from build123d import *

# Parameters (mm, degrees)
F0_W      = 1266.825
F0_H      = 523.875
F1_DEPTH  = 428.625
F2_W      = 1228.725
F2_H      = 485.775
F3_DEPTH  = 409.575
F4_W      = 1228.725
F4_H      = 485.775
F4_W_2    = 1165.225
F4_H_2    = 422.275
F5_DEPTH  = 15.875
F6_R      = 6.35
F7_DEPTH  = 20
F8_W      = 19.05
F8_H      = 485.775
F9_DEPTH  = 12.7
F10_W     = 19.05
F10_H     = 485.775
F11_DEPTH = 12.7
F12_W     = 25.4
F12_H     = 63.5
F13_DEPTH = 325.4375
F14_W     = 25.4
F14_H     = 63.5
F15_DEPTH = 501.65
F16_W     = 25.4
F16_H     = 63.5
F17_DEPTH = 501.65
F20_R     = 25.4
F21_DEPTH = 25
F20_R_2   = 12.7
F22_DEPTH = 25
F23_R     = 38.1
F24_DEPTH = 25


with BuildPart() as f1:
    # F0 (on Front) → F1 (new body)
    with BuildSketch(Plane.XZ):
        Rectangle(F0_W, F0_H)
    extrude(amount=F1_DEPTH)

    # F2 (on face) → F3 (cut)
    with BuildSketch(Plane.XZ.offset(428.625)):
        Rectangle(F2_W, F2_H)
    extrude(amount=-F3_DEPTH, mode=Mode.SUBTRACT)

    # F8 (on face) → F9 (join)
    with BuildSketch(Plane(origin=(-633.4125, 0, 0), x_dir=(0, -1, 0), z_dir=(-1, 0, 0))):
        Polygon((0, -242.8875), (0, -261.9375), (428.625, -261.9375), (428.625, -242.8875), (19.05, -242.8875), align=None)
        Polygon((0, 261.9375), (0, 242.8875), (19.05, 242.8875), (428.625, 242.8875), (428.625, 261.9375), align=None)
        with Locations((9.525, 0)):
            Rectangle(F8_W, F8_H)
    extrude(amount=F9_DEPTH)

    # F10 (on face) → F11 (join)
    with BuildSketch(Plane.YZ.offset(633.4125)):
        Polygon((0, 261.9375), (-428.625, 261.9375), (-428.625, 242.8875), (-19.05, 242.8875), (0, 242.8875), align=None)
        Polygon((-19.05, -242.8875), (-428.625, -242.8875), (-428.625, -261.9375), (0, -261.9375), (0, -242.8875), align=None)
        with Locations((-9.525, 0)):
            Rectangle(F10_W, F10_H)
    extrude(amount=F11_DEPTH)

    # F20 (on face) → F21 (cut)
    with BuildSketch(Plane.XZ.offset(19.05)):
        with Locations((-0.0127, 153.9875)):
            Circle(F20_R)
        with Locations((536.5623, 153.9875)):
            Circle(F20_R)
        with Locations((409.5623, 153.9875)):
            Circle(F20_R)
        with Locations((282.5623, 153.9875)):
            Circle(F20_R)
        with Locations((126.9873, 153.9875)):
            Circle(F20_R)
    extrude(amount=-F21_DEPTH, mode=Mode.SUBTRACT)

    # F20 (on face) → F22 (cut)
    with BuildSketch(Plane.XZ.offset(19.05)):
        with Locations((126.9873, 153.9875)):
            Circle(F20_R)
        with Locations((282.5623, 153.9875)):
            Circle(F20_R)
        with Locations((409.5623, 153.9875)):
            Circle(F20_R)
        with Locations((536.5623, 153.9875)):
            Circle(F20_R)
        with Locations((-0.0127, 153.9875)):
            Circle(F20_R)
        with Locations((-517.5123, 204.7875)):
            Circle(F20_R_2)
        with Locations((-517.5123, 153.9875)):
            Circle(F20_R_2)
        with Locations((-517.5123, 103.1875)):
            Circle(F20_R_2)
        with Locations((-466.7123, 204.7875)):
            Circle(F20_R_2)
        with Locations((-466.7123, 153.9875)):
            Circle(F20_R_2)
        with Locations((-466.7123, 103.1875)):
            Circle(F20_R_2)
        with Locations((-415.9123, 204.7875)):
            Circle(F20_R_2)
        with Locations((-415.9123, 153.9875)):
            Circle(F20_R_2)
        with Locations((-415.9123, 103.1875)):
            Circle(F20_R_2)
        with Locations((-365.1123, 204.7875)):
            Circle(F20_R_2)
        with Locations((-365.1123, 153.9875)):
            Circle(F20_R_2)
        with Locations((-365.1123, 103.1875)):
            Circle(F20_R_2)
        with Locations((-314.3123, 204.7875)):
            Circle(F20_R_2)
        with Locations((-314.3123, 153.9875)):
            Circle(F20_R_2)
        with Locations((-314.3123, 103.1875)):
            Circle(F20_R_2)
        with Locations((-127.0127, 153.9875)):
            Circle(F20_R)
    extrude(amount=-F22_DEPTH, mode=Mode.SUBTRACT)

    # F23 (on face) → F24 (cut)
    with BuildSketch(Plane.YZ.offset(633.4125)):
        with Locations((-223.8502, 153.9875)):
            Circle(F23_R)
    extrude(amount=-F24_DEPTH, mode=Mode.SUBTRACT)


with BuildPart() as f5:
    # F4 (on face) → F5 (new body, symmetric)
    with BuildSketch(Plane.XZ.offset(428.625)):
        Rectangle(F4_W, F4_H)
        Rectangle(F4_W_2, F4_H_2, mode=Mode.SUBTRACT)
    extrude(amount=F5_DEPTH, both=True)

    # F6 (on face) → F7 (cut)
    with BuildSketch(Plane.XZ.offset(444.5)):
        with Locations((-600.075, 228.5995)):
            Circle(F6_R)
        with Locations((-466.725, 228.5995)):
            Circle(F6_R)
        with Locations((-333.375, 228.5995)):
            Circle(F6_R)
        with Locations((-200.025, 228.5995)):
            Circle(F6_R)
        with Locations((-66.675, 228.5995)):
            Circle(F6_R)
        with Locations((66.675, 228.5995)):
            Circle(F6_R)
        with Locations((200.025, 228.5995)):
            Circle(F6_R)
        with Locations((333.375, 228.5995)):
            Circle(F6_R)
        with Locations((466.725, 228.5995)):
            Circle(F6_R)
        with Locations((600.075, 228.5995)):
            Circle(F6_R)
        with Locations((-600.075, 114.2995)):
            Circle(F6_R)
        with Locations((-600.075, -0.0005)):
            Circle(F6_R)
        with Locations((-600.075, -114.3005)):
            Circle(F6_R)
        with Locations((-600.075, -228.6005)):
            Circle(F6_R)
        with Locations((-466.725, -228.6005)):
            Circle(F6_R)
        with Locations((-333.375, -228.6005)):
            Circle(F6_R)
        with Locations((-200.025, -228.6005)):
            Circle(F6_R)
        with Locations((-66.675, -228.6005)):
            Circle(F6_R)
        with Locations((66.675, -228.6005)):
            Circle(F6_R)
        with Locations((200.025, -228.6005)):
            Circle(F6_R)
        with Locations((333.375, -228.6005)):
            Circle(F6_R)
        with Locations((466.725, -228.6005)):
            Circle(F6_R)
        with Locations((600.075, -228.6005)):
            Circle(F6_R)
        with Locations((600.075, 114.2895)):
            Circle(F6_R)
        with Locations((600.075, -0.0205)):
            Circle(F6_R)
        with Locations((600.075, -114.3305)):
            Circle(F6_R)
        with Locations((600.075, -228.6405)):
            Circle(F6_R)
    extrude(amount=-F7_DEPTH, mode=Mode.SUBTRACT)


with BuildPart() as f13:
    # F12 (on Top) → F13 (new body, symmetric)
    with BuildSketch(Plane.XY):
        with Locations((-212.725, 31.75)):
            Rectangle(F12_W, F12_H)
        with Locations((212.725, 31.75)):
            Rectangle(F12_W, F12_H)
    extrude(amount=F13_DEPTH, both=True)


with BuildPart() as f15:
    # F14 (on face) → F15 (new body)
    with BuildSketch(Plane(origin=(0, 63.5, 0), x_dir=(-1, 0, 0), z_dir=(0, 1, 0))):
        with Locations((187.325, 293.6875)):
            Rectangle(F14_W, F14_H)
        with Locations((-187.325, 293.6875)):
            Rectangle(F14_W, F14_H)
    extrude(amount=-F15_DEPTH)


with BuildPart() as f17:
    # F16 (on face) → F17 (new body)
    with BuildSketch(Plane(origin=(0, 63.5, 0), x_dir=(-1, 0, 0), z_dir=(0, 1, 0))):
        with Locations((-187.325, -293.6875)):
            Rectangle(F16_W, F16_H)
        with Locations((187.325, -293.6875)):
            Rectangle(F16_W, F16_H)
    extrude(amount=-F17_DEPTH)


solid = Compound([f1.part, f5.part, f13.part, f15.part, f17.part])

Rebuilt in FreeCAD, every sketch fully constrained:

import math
import FreeCAD as App
import Part
import Sketcher

V = App.Vector
Q = App.Units.Quantity


def add_polygon(sketch, points):
    """Adds a closed chain of lines whose ends are joined by coincident constraints."""
    first, n = sketch.GeometryCount, len(points)
    for a, b in zip(points, points[1:] + points[:1]):
        sketch.addGeometry(Part.LineSegment(App.Vector(*a, 0), App.Vector(*b, 0)), False)
    for i in range(n):
        sketch.addConstraint(Sketcher.Constraint("Coincident", first + i, 2, first + (i + 1) % n, 1))

doc = App.newDocument("Part")
body = doc.addObject("PartDesign::Body", "Body")

# Sketch on XZ plane
sketch1 = body.newObject("Sketcher::SketchObject", "Sketch")
sketch1.AttachmentSupport = (doc.getObject("XZ_Plane"), [""])
sketch1.MapMode = "FlatFace"
add_polygon(sketch1, [(-633, 262), (-633, -262), (633, -262), (633, 262)])  # lines 0-3
sketch1.addConstraint(Sketcher.Constraint("Vertical", 0))
sketch1.addConstraint(Sketcher.Constraint("Horizontal", 1))
sketch1.addConstraint(Sketcher.Constraint("Vertical", 2))
sketch1.addConstraint(Sketcher.Constraint("Horizontal", 3))
sketch1.addConstraint(Sketcher.Constraint("Symmetric", 0, 2, 2, 2, -1, 1))
sketch1.addConstraint(Sketcher.Constraint("DistanceX", 1, 1, 1, 2, Q("49.875 in")))
sketch1.addConstraint(Sketcher.Constraint("DistanceY", 0, 2, 0, 1, Q("20.625 in")))
pad1 = body.newObject("PartDesign::Pad", "Pad")
pad1.Profile = sketch1
pad1.Length = Q("16.875 in")

# Sketch on XZ plane
sketch2 = body.newObject("Sketcher::SketchObject", "Sketch001")
sketch2.AttachmentSupport = (doc.getObject("XZ_Plane"), [""])
sketch2.MapMode = "FlatFace"
sketch2.AttachmentOffset = App.Placement(V(0, 0, 16.875 * 25.4), App.Rotation())
add_polygon(sketch2, [(-614, 243), (-614, -243), (614, -243), (614, 243)])  # lines 0-3
sketch2.addConstraint(Sketcher.Constraint("Vertical", 0))
sketch2.addConstraint(Sketcher.Constraint("Horizontal", 1))
sketch2.addConstraint(Sketcher.Constraint("Vertical", 2))
sketch2.addConstraint(Sketcher.Constraint("Horizontal", 3))
sketch2.addConstraint(Sketcher.Constraint("Symmetric", 0, 2, 2, 2, -1, 1))
sketch2.addConstraint(Sketcher.Constraint("DistanceX", 1, 1, 1, 2, Q("48.375 in")))
sketch2.addConstraint(Sketcher.Constraint("DistanceY", 0, 2, 0, 1, Q("19.125 in")))
pocket1 = body.newObject("PartDesign::Pocket", "Pocket")
pocket1.Profile = sketch2
pocket1.Length = Q("16.125 in")

# Sketch on YZ plane
sketch3 = body.newObject("Sketcher::SketchObject", "Sketch002")
sketch3.AttachmentSupport = (doc.getObject("YZ_Plane"), [""])
sketch3.MapMode = "FlatFace"
sketch3.AttachmentOffset = App.Placement(V(0, 0, -24.9375 * 25.4), App.Rotation())
add_polygon(sketch3, [(0, -262), (-429, -262), (-429, -243), (-19, -243), (-19, 243), (-429, 243), (-429, 262), (0, 262)])  # lines 0-7
sketch3.addConstraint(Sketcher.Constraint("Horizontal", 0))
sketch3.addConstraint(Sketcher.Constraint("Vertical", 1))
sketch3.addConstraint(Sketcher.Constraint("Horizontal", 2))
sketch3.addConstraint(Sketcher.Constraint("Vertical", 3))
sketch3.addConstraint(Sketcher.Constraint("Horizontal", 4))
sketch3.addConstraint(Sketcher.Constraint("Vertical", 5))
sketch3.addConstraint(Sketcher.Constraint("Horizontal", 6))
sketch3.addConstraint(Sketcher.Constraint("Vertical", 7))
sketch3.addConstraint(Sketcher.Constraint("Symmetric", 6, 2, 7, 2, -1, 1))
sketch3.addConstraint(Sketcher.Constraint("Symmetric", 1, 2, 4, 2, -1))
sketch3.addConstraint(Sketcher.Constraint("DistanceY", 1, 1, 1, 2, Q("0.75 in")))
sketch3.addConstraint(Sketcher.Constraint("DistanceX", 0, 2, 0, 1, Q("16.875 in")))
sketch3.addConstraint(Sketcher.Constraint("DistanceX", 2, 1, 2, 2, Q("16.125 in")))
sketch3.addConstraint(Sketcher.Constraint("DistanceY", 3, 1, 3, 2, Q("19.125 in")))
pad2 = body.newObject("PartDesign::Pad", "Pad001")
pad2.Profile = sketch3
pad2.Length = Q("0.5 in")
pad2.Reversed = True

# Sketch on YZ plane
sketch4 = body.newObject("Sketcher::SketchObject", "Sketch003")
sketch4.AttachmentSupport = (doc.getObject("YZ_Plane"), [""])
sketch4.MapMode = "FlatFace"
sketch4.AttachmentOffset = App.Placement(V(0, 0, 24.9375 * 25.4), App.Rotation())
add_polygon(sketch4, [(0, 262), (-429, 262), (-429, 243), (-19, 243), (-19, -243), (-429, -243), (-429, -262), (0, -262)])  # lines 0-7
sketch4.addConstraint(Sketcher.Constraint("Horizontal", 0))
sketch4.addConstraint(Sketcher.Constraint("Vertical", 1))
sketch4.addConstraint(Sketcher.Constraint("Horizontal", 2))
sketch4.addConstraint(Sketcher.Constraint("Vertical", 3))
sketch4.addConstraint(Sketcher.Constraint("Horizontal", 4))
sketch4.addConstraint(Sketcher.Constraint("Vertical", 5))
sketch4.addConstraint(Sketcher.Constraint("Horizontal", 6))
sketch4.addConstraint(Sketcher.Constraint("Vertical", 7))
sketch4.addConstraint(Sketcher.Constraint("Symmetric", 6, 2, 7, 2, -1, 1))
sketch4.addConstraint(Sketcher.Constraint("Symmetric", 1, 2, 4, 2, -1))
sketch4.addConstraint(Sketcher.Constraint("DistanceY", 1, 2, 1, 1, Q("0.75 in")))
sketch4.addConstraint(Sketcher.Constraint("DistanceX", 0, 2, 0, 1, Q("16.875 in")))
sketch4.addConstraint(Sketcher.Constraint("DistanceX", 2, 1, 2, 2, Q("16.125 in")))
sketch4.addConstraint(Sketcher.Constraint("DistanceY", 3, 2, 3, 1, Q("19.125 in")))
pad3 = body.newObject("PartDesign::Pad", "Pad002")
pad3.Profile = sketch4
pad3.Length = Q("0.5 in")

# Sketch on XZ plane
sketch5 = body.newObject("Sketcher::SketchObject", "Sketch004")
sketch5.AttachmentSupport = (doc.getObject("XZ_Plane"), [""])
sketch5.MapMode = "FlatFace"
sketch5.AttachmentOffset = App.Placement(V(0, 0, 0.75 * 25.4), App.Rotation())
sketch5.addGeometry(Part.Circle(V(0, 154, 0), V(0, 0, 1), 25), False)
sketch5.addGeometry(Part.Circle(V(537, 154, 0), V(0, 0, 1), 25), False)
sketch5.addGeometry(Part.Circle(V(410, 154, 0), V(0, 0, 1), 25), False)
sketch5.addGeometry(Part.Circle(V(283, 154, 0), V(0, 0, 1), 25), False)
sketch5.addGeometry(Part.Circle(V(127, 154, 0), V(0, 0, 1), 25), False)
sketch5.addConstraint(Sketcher.Constraint("Equal", 0, 1))
sketch5.addConstraint(Sketcher.Constraint("Equal", 1, 2))
sketch5.addConstraint(Sketcher.Constraint("Equal", 2, 3))
sketch5.addConstraint(Sketcher.Constraint("Equal", 3, 4))
sketch5.addConstraint(Sketcher.Constraint("Horizontal", 0, 3, 1, 3))
sketch5.addConstraint(Sketcher.Constraint("Horizontal", 1, 3, 2, 3))
sketch5.addConstraint(Sketcher.Constraint("Horizontal", 2, 3, 3, 3))
sketch5.addConstraint(Sketcher.Constraint("Horizontal", 3, 3, 4, 3))
sketch5.addConstraint(Sketcher.Constraint("Diameter", 0, Q("2 in")))
sketch5.addConstraint(Sketcher.Constraint("DistanceX", 2, 3, 1, 3, Q("5 in")))
sketch5.addConstraint(Sketcher.Constraint("DistanceX", 3, 3, 2, 3, Q("5 in")))
sketch5.addConstraint(Sketcher.Constraint("DistanceX", 0, 3, 4, 3, Q("5 in")))
sketch5.addConstraint(Sketcher.Constraint("DistanceY", -1, 1, 0, 3, Q("6.0625 in")))
sketch5.addConstraint(Sketcher.Constraint("DistanceX", 0, 3, 1, 3, Q("21.125 in")))
sketch5.addConstraint(Sketcher.Constraint("DistanceX", 0, 3, -1, 1, Q("0.0005 in")))
pocket2 = body.newObject("PartDesign::Pocket", "Pocket001")
pocket2.Profile = sketch5
pocket2.Length = 25

# Sketch on XZ plane
sketch6 = body.newObject("Sketcher::SketchObject", "Sketch005")
sketch6.AttachmentSupport = (doc.getObject("XZ_Plane"), [""])
sketch6.MapMode = "FlatFace"
sketch6.AttachmentOffset = App.Placement(V(0, 0, 0.75 * 25.4), App.Rotation())
sketch6.addGeometry(Part.Circle(V(127, 154, 0), V(0, 0, 1), 25), False)
sketch6.addGeometry(Part.Circle(V(283, 154, 0), V(0, 0, 1), 25), False)
sketch6.addGeometry(Part.Circle(V(410, 154, 0), V(0, 0, 1), 25), False)
sketch6.addGeometry(Part.Circle(V(537, 154, 0), V(0, 0, 1), 25), False)
sketch6.addGeometry(Part.Circle(V(0, 154, 0), V(0, 0, 1), 25), False)
sketch6.addGeometry(Part.Circle(V(-518, 205, 0), V(0, 0, 1), 13), False)
sketch6.addGeometry(Part.Circle(V(-518, 154, 0), V(0, 0, 1), 13), False)
sketch6.addGeometry(Part.Circle(V(-518, 103, 0), V(0, 0, 1), 13), False)
sketch6.addGeometry(Part.Circle(V(-467, 205, 0), V(0, 0, 1), 13), False)
sketch6.addGeometry(Part.Circle(V(-467, 154, 0), V(0, 0, 1), 13), False)
sketch6.addGeometry(Part.Circle(V(-467, 103, 0), V(0, 0, 1), 13), False)
sketch6.addGeometry(Part.Circle(V(-416, 205, 0), V(0, 0, 1), 13), False)
sketch6.addGeometry(Part.Circle(V(-416, 154, 0), V(0, 0, 1), 13), False)
sketch6.addGeometry(Part.Circle(V(-416, 103, 0), V(0, 0, 1), 13), False)
sketch6.addGeometry(Part.Circle(V(-365, 205, 0), V(0, 0, 1), 13), False)
sketch6.addGeometry(Part.Circle(V(-365, 154, 0), V(0, 0, 1), 13), False)
sketch6.addGeometry(Part.Circle(V(-365, 103, 0), V(0, 0, 1), 13), False)
sketch6.addGeometry(Part.Circle(V(-314, 205, 0), V(0, 0, 1), 13), False)
sketch6.addGeometry(Part.Circle(V(-314, 154, 0), V(0, 0, 1), 13), False)
sketch6.addGeometry(Part.Circle(V(-314, 103, 0), V(0, 0, 1), 13), False)
sketch6.addGeometry(Part.Circle(V(-127, 154, 0), V(0, 0, 1), 25), False)
sketch6.addConstraint(Sketcher.Constraint("Equal", 0, 1))
sketch6.addConstraint(Sketcher.Constraint("Equal", 1, 2))
sketch6.addConstraint(Sketcher.Constraint("Equal", 2, 3))
sketch6.addConstraint(Sketcher.Constraint("Equal", 3, 4))
sketch6.addConstraint(Sketcher.Constraint("Equal", 5, 6))
sketch6.addConstraint(Sketcher.Constraint("Equal", 6, 7))
sketch6.addConstraint(Sketcher.Constraint("Equal", 7, 8))
sketch6.addConstraint(Sketcher.Constraint("Equal", 8, 9))
sketch6.addConstraint(Sketcher.Constraint("Equal", 9, 10))
sketch6.addConstraint(Sketcher.Constraint("Equal", 10, 11))
sketch6.addConstraint(Sketcher.Constraint("Equal", 11, 12))
sketch6.addConstraint(Sketcher.Constraint("Equal", 12, 13))
sketch6.addConstraint(Sketcher.Constraint("Equal", 13, 14))
sketch6.addConstraint(Sketcher.Constraint("Equal", 14, 15))
sketch6.addConstraint(Sketcher.Constraint("Equal", 15, 16))
sketch6.addConstraint(Sketcher.Constraint("Equal", 16, 17))
sketch6.addConstraint(Sketcher.Constraint("Equal", 17, 18))
sketch6.addConstraint(Sketcher.Constraint("Equal", 18, 19))
sketch6.addConstraint(Sketcher.Constraint("Equal", 4, 20))
sketch6.addConstraint(Sketcher.Constraint("Horizontal", 0, 3, 1, 3))
sketch6.addConstraint(Sketcher.Constraint("Horizontal", 1, 3, 2, 3))
sketch6.addConstraint(Sketcher.Constraint("Horizontal", 2, 3, 3, 3))
sketch6.addConstraint(Sketcher.Constraint("Horizontal", 3, 3, 4, 3))
sketch6.addConstraint(Sketcher.Constraint("Horizontal", 4, 3, 6, 3))
sketch6.addConstraint(Sketcher.Constraint("Horizontal", 5, 3, 8, 3))
sketch6.addConstraint(Sketcher.Constraint("Horizontal", 6, 3, 9, 3))
sketch6.addConstraint(Sketcher.Constraint("Horizontal", 7, 3, 10, 3))
sketch6.addConstraint(Sketcher.Constraint("Horizontal", 8, 3, 11, 3))
sketch6.addConstraint(Sketcher.Constraint("Horizontal", 9, 3, 12, 3))
sketch6.addConstraint(Sketcher.Constraint("Horizontal", 10, 3, 13, 3))
sketch6.addConstraint(Sketcher.Constraint("Horizontal", 11, 3, 14, 3))
sketch6.addConstraint(Sketcher.Constraint("Horizontal", 12, 3, 15, 3))
sketch6.addConstraint(Sketcher.Constraint("Horizontal", 13, 3, 16, 3))
sketch6.addConstraint(Sketcher.Constraint("Horizontal", 14, 3, 17, 3))
sketch6.addConstraint(Sketcher.Constraint("Horizontal", 15, 3, 18, 3))
sketch6.addConstraint(Sketcher.Constraint("Horizontal", 16, 3, 19, 3))
sketch6.addConstraint(Sketcher.Constraint("Horizontal", 18, 3, 20, 3))
sketch6.addConstraint(Sketcher.Constraint("Vertical", 5, 3, 6, 3))
sketch6.addConstraint(Sketcher.Constraint("Vertical", 6, 3, 7, 3))
sketch6.addConstraint(Sketcher.Constraint("Vertical", 8, 3, 9, 3))
sketch6.addConstraint(Sketcher.Constraint("Vertical", 9, 3, 10, 3))
sketch6.addConstraint(Sketcher.Constraint("Vertical", 11, 3, 12, 3))
sketch6.addConstraint(Sketcher.Constraint("Vertical", 12, 3, 13, 3))
sketch6.addConstraint(Sketcher.Constraint("Vertical", 14, 3, 15, 3))
sketch6.addConstraint(Sketcher.Constraint("Vertical", 15, 3, 16, 3))
sketch6.addConstraint(Sketcher.Constraint("Vertical", 17, 3, 18, 3))
sketch6.addConstraint(Sketcher.Constraint("Vertical", 18, 3, 19, 3))
sketch6.addConstraint(Sketcher.Constraint("Diameter", 0, Q("2 in")))
sketch6.addConstraint(Sketcher.Constraint("Diameter", 5, Q("1 in")))
sketch6.addConstraint(Sketcher.Constraint("DistanceX", 1, 3, 2, 3, Q("5 in")))
sketch6.addConstraint(Sketcher.Constraint("DistanceX", 2, 3, 3, 3, Q("5 in")))
sketch6.addConstraint(Sketcher.Constraint("DistanceX", 4, 3, 0, 3, Q("5 in")))
sketch6.addConstraint(Sketcher.Constraint("DistanceY", 4, 3, 5, 3, Q("2 in")))
sketch6.addConstraint(Sketcher.Constraint("DistanceY", 7, 3, 6, 3, Q("2 in")))
sketch6.addConstraint(Sketcher.Constraint("DistanceX", 5, 3, 8, 3, Q("2 in")))
sketch6.addConstraint(Sketcher.Constraint("DistanceX", 8, 3, 11, 3, Q("2 in")))
sketch6.addConstraint(Sketcher.Constraint("DistanceX", 11, 3, 14, 3, Q("2 in")))
sketch6.addConstraint(Sketcher.Constraint("DistanceX", 14, 3, 17, 3, Q("2 in")))
sketch6.addConstraint(Sketcher.Constraint("DistanceX", 20, 3, 4, 3, Q("5 in")))
sketch6.addConstraint(Sketcher.Constraint("DistanceY", -1, 1, 0, 3, Q("6.0625 in")))
sketch6.addConstraint(Sketcher.Constraint("DistanceX", 0, 3, 1, 3, Q("6.125 in")))
sketch6.addConstraint(Sketcher.Constraint("DistanceX", 5, 3, 4, 3, Q("20.374 in")))
sketch6.addConstraint(Sketcher.Constraint("DistanceX", -1, 1, 0, 3, Q("4.9995 in")))
pocket3 = body.newObject("PartDesign::Pocket", "Pocket002")
pocket3.Profile = sketch6
pocket3.Length = 25

# Sketch on YZ plane
sketch7 = body.newObject("Sketcher::SketchObject", "Sketch006")
sketch7.AttachmentSupport = (doc.getObject("YZ_Plane"), [""])
sketch7.MapMode = "FlatFace"
sketch7.AttachmentOffset = App.Placement(V(0, 0, 24.9375 * 25.4), App.Rotation())
sketch7.addGeometry(Part.Circle(V(-224, 154, 0), V(0, 0, 1), 38), False)
sketch7.addConstraint(Sketcher.Constraint("Diameter", 0, Q("3 in")))
sketch7.addConstraint(Sketcher.Constraint("DistanceX", 0, 3, -1, 1, Q("8.813 in")))
sketch7.addConstraint(Sketcher.Constraint("DistanceY", -1, 1, 0, 3, Q("6.0625 in")))
pocket4 = body.newObject("PartDesign::Pocket", "Pocket003")
pocket4.Profile = sketch7
pocket4.Length = 25
body2 = doc.addObject("PartDesign::Body", "Body001")

# Sketch on XZ plane
sketch8 = body2.newObject("Sketcher::SketchObject", "Sketch007")
sketch8.AttachmentSupport = (doc.getObject("XZ_Plane001"), [""])
sketch8.MapMode = "FlatFace"
sketch8.AttachmentOffset = App.Placement(V(0, 0, 16.875 * 25.4), App.Rotation())
add_polygon(sketch8, [(-614, 243), (-614, -243), (614, -243), (614, 243)])  # lines 0-3
add_polygon(sketch8, [(583, -211), (-583, -211), (-583, 211), (583, 211)])  # lines 4-7
sketch8.addConstraint(Sketcher.Constraint("Vertical", 0))
sketch8.addConstraint(Sketcher.Constraint("Horizontal", 1))
sketch8.addConstraint(Sketcher.Constraint("Vertical", 2))
sketch8.addConstraint(Sketcher.Constraint("Horizontal", 3))
sketch8.addConstraint(Sketcher.Constraint("Horizontal", 4))
sketch8.addConstraint(Sketcher.Constraint("Vertical", 5))
sketch8.addConstraint(Sketcher.Constraint("Horizontal", 6))
sketch8.addConstraint(Sketcher.Constraint("Vertical", 7))
sketch8.addConstraint(Sketcher.Constraint("Symmetric", 0, 2, 2, 2, -1, 1))
sketch8.addConstraint(Sketcher.Constraint("Symmetric", 4, 2, 6, 2, -1, 1))
sketch8.addConstraint(Sketcher.Constraint("DistanceX", 1, 1, 1, 2, Q("48.375 in")))
sketch8.addConstraint(Sketcher.Constraint("DistanceX", 4, 2, 4, 1, Q("45.875 in")))
sketch8.addConstraint(Sketcher.Constraint("DistanceY", 0, 2, 0, 1, Q("19.125 in")))
sketch8.addConstraint(Sketcher.Constraint("DistanceY", 5, 1, 5, 2, Q("16.625 in")))
pad4 = body2.newObject("PartDesign::Pad", "Pad003")
pad4.Profile = sketch8
pad4.Length = Q("1.25 in")
pad4.Midplane = True

# Sketch on XZ plane
sketch9 = body2.newObject("Sketcher::SketchObject", "Sketch008")
sketch9.AttachmentSupport = (doc.getObject("XZ_Plane001"), [""])
sketch9.MapMode = "FlatFace"
sketch9.AttachmentOffset = App.Placement(V(0, 0, 17.5 * 25.4), App.Rotation())
sketch9.addGeometry(Part.Circle(V(-600.075, 228.5995, 0), V(0, 0, 1), 6.35), False)
sketch9.addGeometry(Part.Circle(V(-466.725, 228.5995, 0), V(0, 0, 1), 6.35), False)
sketch9.addGeometry(Part.Circle(V(-333.375, 228.5995, 0), V(0, 0, 1), 6.35), False)
sketch9.addGeometry(Part.Circle(V(-200.025, 228.5995, 0), V(0, 0, 1), 6.35), False)
sketch9.addGeometry(Part.Circle(V(-66.675, 228.5995, 0), V(0, 0, 1), 6.35), False)
sketch9.addGeometry(Part.Circle(V(66.675, 228.5995, 0), V(0, 0, 1), 6.35), False)
sketch9.addGeometry(Part.Circle(V(200.025, 228.5995, 0), V(0, 0, 1), 6.35), False)
sketch9.addGeometry(Part.Circle(V(333.375, 228.5995, 0), V(0, 0, 1), 6.35), False)
sketch9.addGeometry(Part.Circle(V(466.725, 228.5995, 0), V(0, 0, 1), 6.35), False)
sketch9.addGeometry(Part.Circle(V(600.075, 228.5995, 0), V(0, 0, 1), 6.35), False)
sketch9.addGeometry(Part.Circle(V(-600.075, 114.2995, 0), V(0, 0, 1), 6.35), False)
sketch9.addGeometry(Part.Circle(V(-600.075, -0.0005, 0), V(0, 0, 1), 6.35), False)
sketch9.addGeometry(Part.Circle(V(-600.075, -114.3005, 0), V(0, 0, 1), 6.35), False)
sketch9.addGeometry(Part.Circle(V(-600.075, -228.6005, 0), V(0, 0, 1), 6.35), False)
sketch9.addGeometry(Part.Circle(V(-466.725, -228.6005, 0), V(0, 0, 1), 6.35), False)
sketch9.addGeometry(Part.Circle(V(-333.375, -228.6005, 0), V(0, 0, 1), 6.35), False)
sketch9.addGeometry(Part.Circle(V(-200.025, -228.6005, 0), V(0, 0, 1), 6.35), False)
sketch9.addGeometry(Part.Circle(V(-66.675, -228.6005, 0), V(0, 0, 1), 6.35), False)
sketch9.addGeometry(Part.Circle(V(66.675, -228.6005, 0), V(0, 0, 1), 6.35), False)
sketch9.addGeometry(Part.Circle(V(200.025, -228.6005, 0), V(0, 0, 1), 6.35), False)
sketch9.addGeometry(Part.Circle(V(333.375, -228.6005, 0), V(0, 0, 1), 6.35), False)
sketch9.addGeometry(Part.Circle(V(466.725, -228.6005, 0), V(0, 0, 1), 6.35), False)
sketch9.addGeometry(Part.ArcOfCircle(Part.Circle(V(600.075, -228.6005, 0), V(0, 0, 1), 6.35), math.radians(-0.180459), math.radians(180.180459)), False)
sketch9.addGeometry(Part.ArcOfCircle(Part.Circle(V(600.075, -228.6405, 0), V(0, 0, 1), 6.35), math.radians(179.819541), math.radians(360.180459)), False)
sketch9.addGeometry(Part.Circle(V(600.075, 114.2895, 0), V(0, 0, 1), 6.35), False)
sketch9.addGeometry(Part.Circle(V(600.075, -0.0205, 0), V(0, 0, 1), 6.35), False)
sketch9.addGeometry(Part.Circle(V(600.075, -114.3305, 0), V(0, 0, 1), 6.35), False)
sketch9.addConstraint(Sketcher.Constraint("Coincident", 22, 1, 23, 2))
sketch9.addConstraint(Sketcher.Constraint("Coincident", 23, 1, 22, 2))
sketch9.addConstraint(Sketcher.Constraint("Equal", 0, 1))
sketch9.addConstraint(Sketcher.Constraint("Equal", 1, 2))
sketch9.addConstraint(Sketcher.Constraint("Equal", 2, 3))
sketch9.addConstraint(Sketcher.Constraint("Equal", 3, 4))
sketch9.addConstraint(Sketcher.Constraint("Equal", 4, 5))
sketch9.addConstraint(Sketcher.Constraint("Equal", 5, 6))
sketch9.addConstraint(Sketcher.Constraint("Equal", 6, 7))
sketch9.addConstraint(Sketcher.Constraint("Equal", 7, 8))
sketch9.addConstraint(Sketcher.Constraint("Equal", 8, 9))
sketch9.addConstraint(Sketcher.Constraint("Equal", 9, 10))
sketch9.addConstraint(Sketcher.Constraint("Equal", 10, 11))
sketch9.addConstraint(Sketcher.Constraint("Equal", 11, 12))
sketch9.addConstraint(Sketcher.Constraint("Equal", 12, 13))
sketch9.addConstraint(Sketcher.Constraint("Equal", 13, 14))
sketch9.addConstraint(Sketcher.Constraint("Equal", 14, 15))
sketch9.addConstraint(Sketcher.Constraint("Equal", 15, 16))
sketch9.addConstraint(Sketcher.Constraint("Equal", 16, 17))
sketch9.addConstraint(Sketcher.Constraint("Equal", 17, 18))
sketch9.addConstraint(Sketcher.Constraint("Equal", 18, 19))
sketch9.addConstraint(Sketcher.Constraint("Equal", 19, 20))
sketch9.addConstraint(Sketcher.Constraint("Equal", 20, 21))
sketch9.addConstraint(Sketcher.Constraint("Equal", 21, 22))
sketch9.addConstraint(Sketcher.Constraint("Equal", 22, 23))
sketch9.addConstraint(Sketcher.Constraint("Equal", 23, 24))
sketch9.addConstraint(Sketcher.Constraint("Equal", 24, 25))
sketch9.addConstraint(Sketcher.Constraint("Equal", 25, 26))
sketch9.addConstraint(Sketcher.Constraint("Symmetric", 4, 3, 5, 3, -2))
sketch9.addConstraint(Sketcher.Constraint("Symmetric", 3, 3, 6, 3, -2))
sketch9.addConstraint(Sketcher.Constraint("Symmetric", 2, 3, 7, 3, -2))
sketch9.addConstraint(Sketcher.Constraint("Symmetric", 1, 3, 8, 3, -2))
sketch9.addConstraint(Sketcher.Constraint("Symmetric", 0, 3, 9, 3, -2))
sketch9.addConstraint(Sketcher.Constraint("Symmetric", 17, 3, 18, 3, -2))
sketch9.addConstraint(Sketcher.Constraint("Symmetric", 16, 3, 19, 3, -2))
sketch9.addConstraint(Sketcher.Constraint("Symmetric", 15, 3, 20, 3, -2))
sketch9.addConstraint(Sketcher.Constraint("Symmetric", 14, 3, 21, 3, -2))
sketch9.addConstraint(Sketcher.Constraint("Symmetric", 13, 3, 22, 3, -2))
sketch9.addConstraint(Sketcher.Constraint("Horizontal", 0, 3, 1, 3))
sketch9.addConstraint(Sketcher.Constraint("Horizontal", 1, 3, 2, 3))
sketch9.addConstraint(Sketcher.Constraint("Horizontal", 2, 3, 3, 3))
sketch9.addConstraint(Sketcher.Constraint("Horizontal", 3, 3, 4, 3))
sketch9.addConstraint(Sketcher.Constraint("Horizontal", 13, 3, 14, 3))
sketch9.addConstraint(Sketcher.Constraint("Horizontal", 14, 3, 15, 3))
sketch9.addConstraint(Sketcher.Constraint("Horizontal", 15, 3, 16, 3))
sketch9.addConstraint(Sketcher.Constraint("Horizontal", 16, 3, 17, 3))
sketch9.addConstraint(Sketcher.Constraint("Horizontal", 22, 1, 23, 1))
sketch9.addConstraint(Sketcher.Constraint("Vertical", 0, 3, 10, 3))
sketch9.addConstraint(Sketcher.Constraint("Vertical", 10, 3, 11, 3))
sketch9.addConstraint(Sketcher.Constraint("Vertical", 11, 3, 12, 3))
sketch9.addConstraint(Sketcher.Constraint("Vertical", 12, 3, 13, 3))
sketch9.addConstraint(Sketcher.Constraint("Vertical", 1, 3, 14, 3))
sketch9.addConstraint(Sketcher.Constraint("Vertical", 2, 3, 15, 3))
sketch9.addConstraint(Sketcher.Constraint("Vertical", 3, 3, 16, 3))
sketch9.addConstraint(Sketcher.Constraint("Vertical", 4, 3, 17, 3))
sketch9.addConstraint(Sketcher.Constraint("Vertical", 23, 3, 24, 3))
sketch9.addConstraint(Sketcher.Constraint("Vertical", 24, 3, 25, 3))
sketch9.addConstraint(Sketcher.Constraint("Vertical", 25, 3, 26, 3))
sketch9.addConstraint(Sketcher.Constraint("Diameter", 0, Q("0.5 in")))
sketch9.addConstraint(Sketcher.Constraint("DistanceX", 0, 3, 4, 3, Q("21 in")))
sketch9.addConstraint(Sketcher.Constraint("DistanceX", 1, 3, 5, 3, Q("21 in")))
sketch9.addConstraint(Sketcher.Constraint("DistanceX", 2, 3, 6, 3, Q("21 in")))
sketch9.addConstraint(Sketcher.Constraint("DistanceY", 11, 3, 0, 3, Q("9 in")))
sketch9.addConstraint(Sketcher.Constraint("DistanceY", 12, 3, 10, 3, Q("9 in")))
sketch9.addConstraint(Sketcher.Constraint("DistanceY", 13, 3, 11, 3, Q("9 in")))
sketch9.addConstraint(Sketcher.Constraint("DistanceY", 22, 1, 25, 3, Q("9 in")))
sketch9.addConstraint(Sketcher.Constraint("DistanceX", 0, 3, 2, 3, Q("10.5 in")))
sketch9.addConstraint(Sketcher.Constraint("DistanceY", 10, 3, 0, 3, Q("4.5 in")))
sketch9.addConstraint(Sketcher.Constraint("DistanceX", 0, 3, 1, 3, Q("5.25 in")))
sketch9.addConstraint(Sketcher.Constraint("DistanceY", -1, 1, 0, 3, Q("228.5995 mm")))
sketch9.addConstraint(Sketcher.Constraint("DistanceY", 23, 3, -1, 1, Q("228.6405 mm")))
sketch9.addConstraint(Sketcher.Constraint("DistanceY", -1, 1, 24, 3, Q("114.2895 mm")))
sketch9.addConstraint(Sketcher.Constraint("DistanceY", 26, 3, -1, 1, Q("114.3305 mm")))
pocket5 = body2.newObject("PartDesign::Pocket", "Pocket004")
pocket5.Profile = sketch9
pocket5.Length = 20
body3 = doc.addObject("PartDesign::Body", "Body002")
body3.AllowCompound = True

# Sketch on XY plane
sketch10 = body3.newObject("Sketcher::SketchObject", "Sketch009")
sketch10.AttachmentSupport = (doc.getObject("XY_Plane002"), [""])
sketch10.MapMode = "FlatFace"
add_polygon(sketch10, [(-225, 64), (-225, 0), (-200, 0), (-200, 64)])  # lines 0-3
add_polygon(sketch10, [(200, 64), (200, 0), (225, 0), (225, 64)])  # lines 4-7
sketch10.addConstraint(Sketcher.Constraint("Vertical", 0))
sketch10.addConstraint(Sketcher.Constraint("Horizontal", 1))
sketch10.addConstraint(Sketcher.Constraint("Vertical", 2))
sketch10.addConstraint(Sketcher.Constraint("Horizontal", 3))
sketch10.addConstraint(Sketcher.Constraint("Vertical", 4))
sketch10.addConstraint(Sketcher.Constraint("Horizontal", 5))
sketch10.addConstraint(Sketcher.Constraint("Vertical", 6))
sketch10.addConstraint(Sketcher.Constraint("Horizontal", 7))
sketch10.addConstraint(Sketcher.Constraint("Symmetric", 1, 2, 4, 2, -1, 1))
sketch10.addConstraint(Sketcher.Constraint("Symmetric", 0, 2, 5, 2, -2))
sketch10.addConstraint(Sketcher.Constraint("Horizontal", 3, 2, 6, 2))
sketch10.addConstraint(Sketcher.Constraint("DistanceX", 1, 1, 1, 2, Q("1 in")))
sketch10.addConstraint(Sketcher.Constraint("DistanceY", 0, 2, 0, 1, Q("2.5 in")))
sketch10.addConstraint(Sketcher.Constraint("DistanceX", 1, 2, 4, 2, Q("15.75 in")))
pad5 = body3.newObject("PartDesign::Pad", "Pad004")
pad5.Profile = sketch10
pad5.Length = Q("25.625 in")
pad5.Midplane = True
body4 = doc.addObject("PartDesign::Body", "Body003")
body4.AllowCompound = True

# Sketch on XZ plane
sketch11 = body4.newObject("Sketcher::SketchObject", "Sketch010")
sketch11.AttachmentSupport = (doc.getObject("XZ_Plane003"), [""])
sketch11.MapMode = "FlatFace"
sketch11.AttachmentOffset = App.Placement(V(0, 0, -2.5 * 25.4), App.Rotation())
add_polygon(sketch11, [(-175, 325), (-175, 262), (-200, 262), (-200, 325)])  # lines 0-3
add_polygon(sketch11, [(200, 325), (200, 262), (175, 262), (175, 325)])  # lines 4-7
sketch11.addConstraint(Sketcher.Constraint("Vertical", 0))
sketch11.addConstraint(Sketcher.Constraint("Horizontal", 1))
sketch11.addConstraint(Sketcher.Constraint("Vertical", 2))
sketch11.addConstraint(Sketcher.Constraint("Horizontal", 3))
sketch11.addConstraint(Sketcher.Constraint("Vertical", 4))
sketch11.addConstraint(Sketcher.Constraint("Horizontal", 5))
sketch11.addConstraint(Sketcher.Constraint("Vertical", 6))
sketch11.addConstraint(Sketcher.Constraint("Horizontal", 7))
sketch11.addConstraint(Sketcher.Constraint("Symmetric", 1, 2, 4, 2, -2))
sketch11.addConstraint(Sketcher.Constraint("Symmetric", 3, 2, 6, 2, -2))
sketch11.addConstraint(Sketcher.Constraint("DistanceX", 1, 2, 1, 1, Q("1 in")))
sketch11.addConstraint(Sketcher.Constraint("DistanceY", 0, 2, 0, 1, Q("2.5 in")))
sketch11.addConstraint(Sketcher.Constraint("DistanceX", 0, 2, 4, 2, Q("14.75 in")))
sketch11.addConstraint(Sketcher.Constraint("DistanceY", -1, 1, 0, 2, Q("10.3125 in")))
pad6 = body4.newObject("PartDesign::Pad", "Pad005")
pad6.Profile = sketch11
pad6.Length = Q("19.75 in")
body5 = doc.addObject("PartDesign::Body", "Body004")
body5.AllowCompound = True

# Sketch on XZ plane
sketch12 = body5.newObject("Sketcher::SketchObject", "Sketch011")
sketch12.AttachmentSupport = (doc.getObject("XZ_Plane004"), [""])
sketch12.MapMode = "FlatFace"
sketch12.AttachmentOffset = App.Placement(V(0, 0, -2.5 * 25.4), App.Rotation())
add_polygon(sketch12, [(200, -262), (200, -325), (175, -325), (175, -262)])  # lines 0-3
add_polygon(sketch12, [(-175, -262), (-175, -325), (-200, -325), (-200, -262)])  # lines 4-7
sketch12.addConstraint(Sketcher.Constraint("Vertical", 0))
sketch12.addConstraint(Sketcher.Constraint("Horizontal", 1))
sketch12.addConstraint(Sketcher.Constraint("Vertical", 2))
sketch12.addConstraint(Sketcher.Constraint("Horizontal", 3))
sketch12.addConstraint(Sketcher.Constraint("Vertical", 4))
sketch12.addConstraint(Sketcher.Constraint("Horizontal", 5))
sketch12.addConstraint(Sketcher.Constraint("Vertical", 6))
sketch12.addConstraint(Sketcher.Constraint("Horizontal", 7))
sketch12.addConstraint(Sketcher.Constraint("Symmetric", 1, 2, 4, 2, -2))
sketch12.addConstraint(Sketcher.Constraint("Symmetric", 3, 2, 6, 2, -2))
sketch12.addConstraint(Sketcher.Constraint("DistanceX", 1, 2, 1, 1, Q("1 in")))
sketch12.addConstraint(Sketcher.Constraint("DistanceY", 0, 2, 0, 1, Q("2.5 in")))
sketch12.addConstraint(Sketcher.Constraint("DistanceX", 4, 2, 1, 2, Q("13.75 in")))
sketch12.addConstraint(Sketcher.Constraint("DistanceY", 0, 2, -1, 1, Q("12.8125 in")))
pad7 = body5.newObject("PartDesign::Pad", "Pad006")
pad7.Profile = sketch12
pad7.Length = Q("19.75 in")

doc.recompute()
